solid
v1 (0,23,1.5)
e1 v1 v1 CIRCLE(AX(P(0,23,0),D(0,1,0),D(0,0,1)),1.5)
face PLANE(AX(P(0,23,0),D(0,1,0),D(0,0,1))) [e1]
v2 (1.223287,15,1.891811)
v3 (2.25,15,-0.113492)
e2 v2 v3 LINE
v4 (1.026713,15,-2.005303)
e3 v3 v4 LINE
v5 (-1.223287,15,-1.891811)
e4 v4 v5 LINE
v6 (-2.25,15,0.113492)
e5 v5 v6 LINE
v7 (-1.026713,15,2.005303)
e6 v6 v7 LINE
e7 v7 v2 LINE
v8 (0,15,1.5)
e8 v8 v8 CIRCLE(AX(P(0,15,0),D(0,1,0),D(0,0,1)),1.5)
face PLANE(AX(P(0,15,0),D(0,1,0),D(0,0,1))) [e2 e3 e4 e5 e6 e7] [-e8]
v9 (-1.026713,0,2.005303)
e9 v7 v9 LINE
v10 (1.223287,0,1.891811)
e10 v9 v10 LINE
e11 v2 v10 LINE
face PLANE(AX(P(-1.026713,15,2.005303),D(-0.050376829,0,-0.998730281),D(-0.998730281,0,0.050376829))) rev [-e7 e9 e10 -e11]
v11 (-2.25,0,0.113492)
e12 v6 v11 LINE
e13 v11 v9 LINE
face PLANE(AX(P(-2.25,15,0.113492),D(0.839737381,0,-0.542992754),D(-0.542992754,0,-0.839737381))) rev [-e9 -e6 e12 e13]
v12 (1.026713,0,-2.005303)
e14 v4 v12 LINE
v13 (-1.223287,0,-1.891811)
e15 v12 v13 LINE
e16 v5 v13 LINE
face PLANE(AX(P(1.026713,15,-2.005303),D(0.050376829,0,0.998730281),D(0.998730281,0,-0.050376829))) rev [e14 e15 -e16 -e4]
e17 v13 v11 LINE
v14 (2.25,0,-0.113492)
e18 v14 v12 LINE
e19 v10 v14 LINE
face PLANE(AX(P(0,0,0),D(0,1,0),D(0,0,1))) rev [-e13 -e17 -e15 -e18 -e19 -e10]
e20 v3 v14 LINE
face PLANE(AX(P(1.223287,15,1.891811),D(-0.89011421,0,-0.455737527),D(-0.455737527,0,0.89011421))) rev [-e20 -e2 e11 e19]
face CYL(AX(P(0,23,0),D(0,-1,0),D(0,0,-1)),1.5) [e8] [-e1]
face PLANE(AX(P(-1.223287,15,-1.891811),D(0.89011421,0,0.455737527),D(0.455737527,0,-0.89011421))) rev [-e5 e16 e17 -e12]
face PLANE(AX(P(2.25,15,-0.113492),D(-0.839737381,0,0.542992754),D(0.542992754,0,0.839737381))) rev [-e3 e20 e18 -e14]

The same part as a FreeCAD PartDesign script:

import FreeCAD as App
import Part
import Sketcher
Q = App.Units.Quantity

doc = App.newDocument("Part")
body = doc.addObject("PartDesign::Body", "Body")

# Sketch on XZ plane
sketch1 = doc.addObject("Sketcher::SketchObject", "Sketch")
body.addObject(sketch1)
sketch1.AttachmentSupport = (doc.XZ_Plane, [""])
sketch1.MapMode = "FlatFace"
sketch1.addGeometry([
    Part.LineSegment(App.Vector(1.223287, 1.891811, 0), App.Vector(2.25, -0.113492, 0)),  # 0
    Part.LineSegment(App.Vector(2.25, -0.113492, 0), App.Vector(1.026713, -2.005303, 0)),  # 1
    Part.LineSegment(App.Vector(1.026713, -2.005303, 0), App.Vector(-1.223287, -1.891811, 0)),  # 2
    Part.LineSegment(App.Vector(-1.223287, -1.891811, 0), App.Vector(-2.25, 0.113492, 0)),  # 3
    Part.LineSegment(App.Vector(-2.25, 0.113492, 0), App.Vector(-1.026713, 2.005303, 0)),  # 4
    Part.LineSegment(App.Vector(-1.026713, 2.005303, 0), App.Vector(1.223287, 1.891811, 0)),  # 5
], False)
sketch1.addConstraint([
    Sketcher.Constraint("Coincident", 0, 2, 1, 1),
    Sketcher.Constraint("Coincident", 1, 2, 2, 1),
    Sketcher.Constraint("Coincident", 2, 2, 3, 1),
    Sketcher.Constraint("Coincident", 3, 2, 4, 1),
    Sketcher.Constraint("Coincident", 4, 2, 5, 1),
    Sketcher.Constraint("Coincident", 5, 2, 0, 1),
    Sketcher.Constraint("Symmetric", 0, 2, 3, 2, -1, 1),
    Sketcher.Constraint("Symmetric", 1, 2, 4, 2, -1, 1),
    Sketcher.Constraint("Symmetric", 2, 2, 5, 2, -1, 1),
    Sketcher.Constraint("Equal", 0, 1),
    Sketcher.Constraint("Equal", 1, 2),
    Sketcher.Constraint("DistanceX", 3, 2, 0, 2, Q("4.5 mm")),
    Sketcher.Constraint("DistanceX", 2, 2, 1, 2, Q("2.25 mm")),
    Sketcher.Constraint("Distance", 0, Q("2.25286 mm")),
    Sketcher.Constraint("DistanceY", 0, 2, -1, 1, Q("0.113492 mm")),
])
pad1 = doc.addObject("PartDesign::Pad", "Pad")
body.addObject(pad1)
pad1.Profile = sketch1
pad1.Length = 15
pad1.Reversed = True

# Sketch on XZ plane
sketch2 = doc.addObject("Sketcher::SketchObject", "Sketch001")
body.addObject(sketch2)
sketch2.AttachmentSupport = (doc.XZ_Plane, [""])
sketch2.MapMode = "FlatFace"
sketch2.AttachmentOffset = App.Placement(App.Vector(0, 0, -15), App.Rotation())
sketch2.addGeometry(Part.Circle(App.Vector(0, 0, 0), App.Vector(0, 0, 1), 1.5), False)
sketch2.addConstraint([
    Sketcher.Constraint("Coincident", 0, 3, -1, 1),
    Sketcher.Constraint("Diameter", 0, Q("3 mm")),
])
pad2 = doc.addObject("PartDesign::Pad", "Pad001")
body.addObject(pad2)
pad2.Profile = sketch2
pad2.Length = 8
pad2.Reversed = True

doc.recompute()
